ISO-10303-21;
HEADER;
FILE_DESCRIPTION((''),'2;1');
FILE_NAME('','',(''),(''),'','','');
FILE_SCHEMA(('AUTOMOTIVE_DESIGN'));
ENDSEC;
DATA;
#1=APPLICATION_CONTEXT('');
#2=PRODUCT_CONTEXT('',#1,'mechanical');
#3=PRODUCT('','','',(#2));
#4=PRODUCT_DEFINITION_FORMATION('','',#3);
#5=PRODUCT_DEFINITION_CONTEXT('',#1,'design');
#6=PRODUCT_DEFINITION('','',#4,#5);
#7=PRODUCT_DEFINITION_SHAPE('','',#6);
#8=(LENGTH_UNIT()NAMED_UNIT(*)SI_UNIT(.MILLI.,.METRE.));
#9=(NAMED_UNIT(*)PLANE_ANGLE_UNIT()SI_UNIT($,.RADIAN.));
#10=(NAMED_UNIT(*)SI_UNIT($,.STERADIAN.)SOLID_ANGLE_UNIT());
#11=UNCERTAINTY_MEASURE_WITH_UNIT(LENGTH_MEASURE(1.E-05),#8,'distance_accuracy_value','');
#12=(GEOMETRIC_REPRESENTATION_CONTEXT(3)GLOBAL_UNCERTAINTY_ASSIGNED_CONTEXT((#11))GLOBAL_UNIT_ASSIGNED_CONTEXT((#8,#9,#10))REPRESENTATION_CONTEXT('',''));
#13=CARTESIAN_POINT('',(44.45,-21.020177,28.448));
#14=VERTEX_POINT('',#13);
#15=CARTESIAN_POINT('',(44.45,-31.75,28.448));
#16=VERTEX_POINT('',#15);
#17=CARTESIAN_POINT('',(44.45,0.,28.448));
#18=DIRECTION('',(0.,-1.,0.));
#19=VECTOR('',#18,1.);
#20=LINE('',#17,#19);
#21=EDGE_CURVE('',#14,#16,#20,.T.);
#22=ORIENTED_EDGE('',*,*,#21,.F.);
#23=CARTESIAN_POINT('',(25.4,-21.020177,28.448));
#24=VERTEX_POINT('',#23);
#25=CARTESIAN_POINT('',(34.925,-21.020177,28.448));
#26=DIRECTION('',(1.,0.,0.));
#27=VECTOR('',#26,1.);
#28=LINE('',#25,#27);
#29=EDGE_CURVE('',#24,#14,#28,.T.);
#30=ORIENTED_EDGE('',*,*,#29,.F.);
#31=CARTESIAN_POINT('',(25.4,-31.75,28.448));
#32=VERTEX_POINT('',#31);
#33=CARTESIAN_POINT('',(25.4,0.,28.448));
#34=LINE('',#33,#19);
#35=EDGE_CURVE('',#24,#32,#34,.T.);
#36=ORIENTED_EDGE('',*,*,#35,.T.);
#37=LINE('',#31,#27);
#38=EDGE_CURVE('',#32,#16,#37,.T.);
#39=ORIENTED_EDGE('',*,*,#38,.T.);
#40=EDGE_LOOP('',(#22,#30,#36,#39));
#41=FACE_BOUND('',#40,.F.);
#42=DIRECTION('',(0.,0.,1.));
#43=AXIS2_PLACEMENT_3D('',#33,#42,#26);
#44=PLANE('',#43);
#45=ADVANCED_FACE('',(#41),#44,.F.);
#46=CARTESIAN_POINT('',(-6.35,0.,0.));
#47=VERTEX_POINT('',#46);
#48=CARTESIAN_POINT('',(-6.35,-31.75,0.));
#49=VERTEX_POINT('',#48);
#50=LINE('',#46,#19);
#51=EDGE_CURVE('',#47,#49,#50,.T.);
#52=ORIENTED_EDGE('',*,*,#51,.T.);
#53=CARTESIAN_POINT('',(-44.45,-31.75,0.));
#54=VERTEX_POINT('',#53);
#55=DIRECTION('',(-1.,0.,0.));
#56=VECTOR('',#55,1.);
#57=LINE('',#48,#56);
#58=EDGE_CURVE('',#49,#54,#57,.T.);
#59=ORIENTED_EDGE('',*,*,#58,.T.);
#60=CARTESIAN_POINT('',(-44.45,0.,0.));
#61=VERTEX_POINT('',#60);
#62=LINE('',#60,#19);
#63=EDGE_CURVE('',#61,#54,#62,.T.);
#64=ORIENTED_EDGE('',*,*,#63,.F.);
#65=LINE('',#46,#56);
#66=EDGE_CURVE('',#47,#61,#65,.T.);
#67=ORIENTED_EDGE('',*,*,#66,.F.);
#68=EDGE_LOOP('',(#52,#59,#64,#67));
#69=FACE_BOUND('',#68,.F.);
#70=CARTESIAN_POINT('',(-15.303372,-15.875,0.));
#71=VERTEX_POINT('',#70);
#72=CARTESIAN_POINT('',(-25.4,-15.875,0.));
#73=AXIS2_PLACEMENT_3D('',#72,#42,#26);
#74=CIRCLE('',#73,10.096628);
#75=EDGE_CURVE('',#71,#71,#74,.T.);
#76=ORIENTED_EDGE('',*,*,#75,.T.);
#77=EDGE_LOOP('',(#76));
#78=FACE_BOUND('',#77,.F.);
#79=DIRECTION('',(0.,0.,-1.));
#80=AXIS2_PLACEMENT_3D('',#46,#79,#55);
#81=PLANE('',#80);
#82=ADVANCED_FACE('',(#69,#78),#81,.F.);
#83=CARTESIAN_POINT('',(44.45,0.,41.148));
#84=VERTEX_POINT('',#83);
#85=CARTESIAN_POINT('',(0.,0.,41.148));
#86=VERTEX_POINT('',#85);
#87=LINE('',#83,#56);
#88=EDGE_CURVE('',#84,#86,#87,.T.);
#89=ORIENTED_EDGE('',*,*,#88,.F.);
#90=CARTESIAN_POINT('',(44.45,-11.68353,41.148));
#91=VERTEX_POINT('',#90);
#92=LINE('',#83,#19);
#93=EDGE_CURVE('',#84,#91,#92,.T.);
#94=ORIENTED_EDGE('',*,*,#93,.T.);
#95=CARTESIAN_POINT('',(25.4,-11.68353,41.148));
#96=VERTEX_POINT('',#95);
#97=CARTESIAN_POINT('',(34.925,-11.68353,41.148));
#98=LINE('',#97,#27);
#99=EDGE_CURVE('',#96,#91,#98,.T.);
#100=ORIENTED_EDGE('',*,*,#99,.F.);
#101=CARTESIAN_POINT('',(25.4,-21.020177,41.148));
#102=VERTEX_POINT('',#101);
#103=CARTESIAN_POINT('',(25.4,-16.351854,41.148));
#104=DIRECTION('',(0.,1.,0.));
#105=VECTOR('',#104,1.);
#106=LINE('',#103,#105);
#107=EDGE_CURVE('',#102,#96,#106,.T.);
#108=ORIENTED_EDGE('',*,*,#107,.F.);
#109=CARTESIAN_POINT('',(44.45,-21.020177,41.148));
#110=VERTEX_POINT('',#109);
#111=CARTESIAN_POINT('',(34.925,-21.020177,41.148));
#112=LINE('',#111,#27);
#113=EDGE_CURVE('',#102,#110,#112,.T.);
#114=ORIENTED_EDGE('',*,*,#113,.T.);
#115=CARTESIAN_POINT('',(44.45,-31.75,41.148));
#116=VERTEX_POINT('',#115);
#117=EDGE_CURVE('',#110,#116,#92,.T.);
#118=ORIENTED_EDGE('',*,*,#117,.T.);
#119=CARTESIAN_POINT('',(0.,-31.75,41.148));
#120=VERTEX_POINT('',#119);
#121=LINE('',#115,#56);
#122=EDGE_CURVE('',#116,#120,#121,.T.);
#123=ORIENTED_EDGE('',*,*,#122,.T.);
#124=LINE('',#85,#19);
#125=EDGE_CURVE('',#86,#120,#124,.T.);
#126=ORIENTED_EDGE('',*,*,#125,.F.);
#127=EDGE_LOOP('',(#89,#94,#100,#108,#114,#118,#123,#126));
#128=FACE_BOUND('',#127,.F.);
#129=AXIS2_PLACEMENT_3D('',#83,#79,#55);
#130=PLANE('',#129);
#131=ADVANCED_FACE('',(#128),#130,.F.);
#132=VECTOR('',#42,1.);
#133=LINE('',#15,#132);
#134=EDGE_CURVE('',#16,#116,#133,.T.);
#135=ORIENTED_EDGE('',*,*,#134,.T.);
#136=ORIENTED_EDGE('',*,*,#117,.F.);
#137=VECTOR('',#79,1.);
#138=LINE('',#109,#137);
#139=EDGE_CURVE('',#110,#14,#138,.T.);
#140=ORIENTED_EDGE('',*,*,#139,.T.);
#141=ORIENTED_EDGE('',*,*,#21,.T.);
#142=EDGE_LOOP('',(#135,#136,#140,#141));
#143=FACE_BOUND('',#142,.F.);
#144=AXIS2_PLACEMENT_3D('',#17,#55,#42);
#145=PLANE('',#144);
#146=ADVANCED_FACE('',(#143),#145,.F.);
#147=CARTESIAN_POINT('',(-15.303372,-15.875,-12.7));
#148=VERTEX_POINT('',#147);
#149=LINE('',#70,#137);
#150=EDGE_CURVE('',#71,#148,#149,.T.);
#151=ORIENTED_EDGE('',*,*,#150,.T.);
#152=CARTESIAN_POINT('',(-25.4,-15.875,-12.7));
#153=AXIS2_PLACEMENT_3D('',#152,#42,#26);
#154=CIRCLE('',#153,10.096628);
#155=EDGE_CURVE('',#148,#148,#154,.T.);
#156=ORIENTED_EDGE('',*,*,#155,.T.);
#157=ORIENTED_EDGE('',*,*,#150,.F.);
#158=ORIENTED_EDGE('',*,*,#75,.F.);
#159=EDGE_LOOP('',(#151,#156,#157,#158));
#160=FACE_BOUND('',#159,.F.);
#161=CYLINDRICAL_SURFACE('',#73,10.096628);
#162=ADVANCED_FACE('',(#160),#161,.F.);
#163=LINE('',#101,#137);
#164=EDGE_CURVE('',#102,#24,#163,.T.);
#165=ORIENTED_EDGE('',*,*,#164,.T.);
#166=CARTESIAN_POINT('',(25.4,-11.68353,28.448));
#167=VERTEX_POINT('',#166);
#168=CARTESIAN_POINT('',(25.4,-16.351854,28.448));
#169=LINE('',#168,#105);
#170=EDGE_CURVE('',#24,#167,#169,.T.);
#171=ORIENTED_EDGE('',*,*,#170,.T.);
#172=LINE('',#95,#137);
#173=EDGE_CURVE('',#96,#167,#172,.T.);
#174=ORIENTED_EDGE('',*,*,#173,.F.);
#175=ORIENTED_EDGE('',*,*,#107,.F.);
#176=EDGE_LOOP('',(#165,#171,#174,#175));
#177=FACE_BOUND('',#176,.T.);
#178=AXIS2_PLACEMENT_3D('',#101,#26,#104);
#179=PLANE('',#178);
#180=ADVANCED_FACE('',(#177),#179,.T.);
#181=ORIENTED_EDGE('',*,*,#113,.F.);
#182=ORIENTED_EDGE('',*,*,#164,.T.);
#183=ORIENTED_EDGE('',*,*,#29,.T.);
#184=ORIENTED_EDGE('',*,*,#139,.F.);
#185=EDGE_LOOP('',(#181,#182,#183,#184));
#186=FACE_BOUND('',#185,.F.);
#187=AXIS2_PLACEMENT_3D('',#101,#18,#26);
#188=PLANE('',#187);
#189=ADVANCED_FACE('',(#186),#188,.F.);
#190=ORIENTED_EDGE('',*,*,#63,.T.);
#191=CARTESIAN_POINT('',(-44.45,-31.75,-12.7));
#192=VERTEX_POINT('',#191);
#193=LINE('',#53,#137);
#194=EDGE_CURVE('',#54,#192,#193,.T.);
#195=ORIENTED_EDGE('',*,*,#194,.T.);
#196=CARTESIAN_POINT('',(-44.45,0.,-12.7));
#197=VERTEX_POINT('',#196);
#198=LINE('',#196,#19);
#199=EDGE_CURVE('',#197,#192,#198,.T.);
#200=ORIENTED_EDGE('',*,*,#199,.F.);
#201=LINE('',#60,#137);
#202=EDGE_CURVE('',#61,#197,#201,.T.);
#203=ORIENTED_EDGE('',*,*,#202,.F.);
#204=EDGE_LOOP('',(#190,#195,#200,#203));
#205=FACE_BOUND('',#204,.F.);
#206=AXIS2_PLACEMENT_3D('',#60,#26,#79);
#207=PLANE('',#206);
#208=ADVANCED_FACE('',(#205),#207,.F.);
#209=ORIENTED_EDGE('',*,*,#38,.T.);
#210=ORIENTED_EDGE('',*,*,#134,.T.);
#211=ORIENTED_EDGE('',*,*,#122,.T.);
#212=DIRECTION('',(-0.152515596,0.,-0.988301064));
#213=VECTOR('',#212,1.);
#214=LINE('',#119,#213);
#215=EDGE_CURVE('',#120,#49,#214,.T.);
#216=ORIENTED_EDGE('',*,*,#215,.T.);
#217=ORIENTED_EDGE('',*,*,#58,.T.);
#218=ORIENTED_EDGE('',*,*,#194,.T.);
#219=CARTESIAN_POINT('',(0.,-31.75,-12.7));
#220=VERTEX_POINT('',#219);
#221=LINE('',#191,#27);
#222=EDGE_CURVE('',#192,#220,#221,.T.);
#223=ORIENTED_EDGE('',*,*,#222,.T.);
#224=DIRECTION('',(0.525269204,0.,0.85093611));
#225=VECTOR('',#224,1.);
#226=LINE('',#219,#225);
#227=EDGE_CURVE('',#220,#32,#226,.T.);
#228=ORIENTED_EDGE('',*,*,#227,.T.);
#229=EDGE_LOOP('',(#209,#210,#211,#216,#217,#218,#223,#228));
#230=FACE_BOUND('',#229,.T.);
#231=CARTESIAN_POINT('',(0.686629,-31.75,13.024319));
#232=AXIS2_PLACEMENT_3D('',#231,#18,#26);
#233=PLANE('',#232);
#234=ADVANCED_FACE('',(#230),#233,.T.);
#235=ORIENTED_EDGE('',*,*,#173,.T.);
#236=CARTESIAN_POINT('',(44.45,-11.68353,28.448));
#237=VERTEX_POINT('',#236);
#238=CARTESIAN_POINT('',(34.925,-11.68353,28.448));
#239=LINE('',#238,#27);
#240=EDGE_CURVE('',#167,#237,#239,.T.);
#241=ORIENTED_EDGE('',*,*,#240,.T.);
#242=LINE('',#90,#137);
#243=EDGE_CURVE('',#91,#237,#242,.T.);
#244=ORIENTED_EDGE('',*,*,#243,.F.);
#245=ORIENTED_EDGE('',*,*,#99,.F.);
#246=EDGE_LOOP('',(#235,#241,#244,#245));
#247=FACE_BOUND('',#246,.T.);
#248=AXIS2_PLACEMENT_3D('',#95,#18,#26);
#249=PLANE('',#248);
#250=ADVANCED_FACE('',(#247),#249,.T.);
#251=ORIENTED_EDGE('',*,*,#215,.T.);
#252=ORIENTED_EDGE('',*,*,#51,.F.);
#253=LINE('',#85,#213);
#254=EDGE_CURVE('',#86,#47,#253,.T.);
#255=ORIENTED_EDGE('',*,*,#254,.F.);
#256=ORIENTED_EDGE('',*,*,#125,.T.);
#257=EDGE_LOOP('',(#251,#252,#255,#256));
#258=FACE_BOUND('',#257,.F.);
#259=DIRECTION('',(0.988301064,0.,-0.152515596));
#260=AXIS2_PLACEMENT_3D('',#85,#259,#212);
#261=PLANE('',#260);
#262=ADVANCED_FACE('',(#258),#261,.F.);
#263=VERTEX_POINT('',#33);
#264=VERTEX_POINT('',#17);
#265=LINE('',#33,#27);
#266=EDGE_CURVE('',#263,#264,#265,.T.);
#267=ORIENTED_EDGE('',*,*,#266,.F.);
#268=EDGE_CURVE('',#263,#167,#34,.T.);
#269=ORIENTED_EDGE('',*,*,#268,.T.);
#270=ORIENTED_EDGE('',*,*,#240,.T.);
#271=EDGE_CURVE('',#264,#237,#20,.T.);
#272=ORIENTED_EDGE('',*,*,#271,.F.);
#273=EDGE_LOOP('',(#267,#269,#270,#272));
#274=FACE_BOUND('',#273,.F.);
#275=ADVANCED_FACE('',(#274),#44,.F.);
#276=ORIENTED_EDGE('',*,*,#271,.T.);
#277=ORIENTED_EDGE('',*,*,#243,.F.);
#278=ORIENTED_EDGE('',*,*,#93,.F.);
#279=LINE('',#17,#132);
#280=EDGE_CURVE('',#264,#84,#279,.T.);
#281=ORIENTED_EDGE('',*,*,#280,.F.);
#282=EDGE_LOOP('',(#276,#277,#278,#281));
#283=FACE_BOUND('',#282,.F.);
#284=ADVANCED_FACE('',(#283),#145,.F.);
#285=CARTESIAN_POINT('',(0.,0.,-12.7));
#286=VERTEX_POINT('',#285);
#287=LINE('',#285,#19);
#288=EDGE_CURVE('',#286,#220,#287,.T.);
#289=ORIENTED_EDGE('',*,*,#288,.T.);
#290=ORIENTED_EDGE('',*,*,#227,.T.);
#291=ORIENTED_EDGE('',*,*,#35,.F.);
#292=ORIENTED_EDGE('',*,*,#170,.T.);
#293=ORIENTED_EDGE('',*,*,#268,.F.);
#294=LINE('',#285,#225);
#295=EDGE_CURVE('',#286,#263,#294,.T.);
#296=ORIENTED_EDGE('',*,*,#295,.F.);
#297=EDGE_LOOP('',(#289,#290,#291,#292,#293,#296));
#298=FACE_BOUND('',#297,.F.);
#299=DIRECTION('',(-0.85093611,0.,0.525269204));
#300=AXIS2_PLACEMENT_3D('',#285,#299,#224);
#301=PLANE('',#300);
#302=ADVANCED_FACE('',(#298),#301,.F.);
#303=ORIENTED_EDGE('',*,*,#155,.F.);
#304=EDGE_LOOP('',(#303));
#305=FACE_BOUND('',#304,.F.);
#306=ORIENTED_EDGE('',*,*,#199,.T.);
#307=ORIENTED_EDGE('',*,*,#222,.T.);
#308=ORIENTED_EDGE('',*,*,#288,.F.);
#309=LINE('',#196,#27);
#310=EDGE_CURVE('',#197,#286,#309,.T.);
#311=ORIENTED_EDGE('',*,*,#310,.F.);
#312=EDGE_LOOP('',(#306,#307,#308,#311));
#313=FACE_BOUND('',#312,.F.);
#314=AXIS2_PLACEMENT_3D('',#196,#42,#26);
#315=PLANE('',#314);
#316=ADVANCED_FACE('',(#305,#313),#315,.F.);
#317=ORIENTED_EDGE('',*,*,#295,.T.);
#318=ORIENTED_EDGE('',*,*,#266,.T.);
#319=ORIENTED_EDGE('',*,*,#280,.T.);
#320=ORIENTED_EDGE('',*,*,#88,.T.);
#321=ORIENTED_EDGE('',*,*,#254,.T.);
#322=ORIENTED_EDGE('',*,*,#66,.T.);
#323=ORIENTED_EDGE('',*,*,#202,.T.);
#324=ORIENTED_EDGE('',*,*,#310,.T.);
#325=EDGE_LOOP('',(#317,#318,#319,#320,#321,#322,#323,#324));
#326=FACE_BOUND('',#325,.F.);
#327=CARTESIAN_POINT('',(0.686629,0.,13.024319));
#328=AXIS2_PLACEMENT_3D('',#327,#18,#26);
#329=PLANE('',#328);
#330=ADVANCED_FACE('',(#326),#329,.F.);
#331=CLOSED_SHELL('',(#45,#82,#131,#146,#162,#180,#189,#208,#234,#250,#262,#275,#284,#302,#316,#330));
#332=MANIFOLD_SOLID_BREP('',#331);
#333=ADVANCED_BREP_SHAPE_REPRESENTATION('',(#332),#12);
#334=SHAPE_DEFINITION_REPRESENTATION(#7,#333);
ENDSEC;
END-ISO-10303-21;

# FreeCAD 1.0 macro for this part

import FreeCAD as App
import Part
import Sketcher

V = App.Vector
Q = App.Units.Quantity


def add_polygon(sketch, points):
    """Adds a closed chain of lines whose ends are joined by coincident constraints."""
    first, n = sketch.GeometryCount, len(points)
    for a, b in zip(points, points[1:] + points[:1]):
        sketch.addGeometry(Part.LineSegment(App.Vector(*a, 0), App.Vector(*b, 0)), False)
    for i in range(n):
        sketch.addConstraint(Sketcher.Constraint("Coincident", first + i, 2, first + (i + 1) % n, 1))

doc = App.newDocument("Part")
params = doc.addObject("Spreadsheet::Sheet", "Params")
for row, (alias, value) in enumerate([
    ("sketch1_width", "1.5 in"),
    ("sketch1_height", "0.5 in"),
    ("sketch1_width2", "1.75 in"),
    ("pad1_length", "1.25 in"),
    ("pocket1_length", "0.62 in"),
    ("sketch3_width", "0.75 in"),
    ("pocket2_length", "0.5 in"),
], start=1):
    params.set(f"A{row}", alias)
    params.set(f"B{row}", "=" + value)
    params.setAlias(f"B{row}", alias)

body = doc.addObject("PartDesign::Body", "Body")

sketch1 = body.newObject("Sketcher::SketchObject", "Sketch")
sketch1.AttachmentSupport = (doc.getObject("XZ_Plane"), [""])
sketch1.MapMode = "FlatFace"
add_polygon(sketch1, [(-6, 0), (-44, 0), (-44, -13), (0, -13), (25, 28), (44, 28), (44, 41), (0, 41)])
sketch1.addConstraint([
    Sketcher.Constraint("Horizontal", 0),
    Sketcher.Constraint("Vertical", 1),
    Sketcher.Constraint("Horizontal", 2),
    Sketcher.Constraint("Horizontal", 4),
    Sketcher.Constraint("Vertical", 5),
    Sketcher.Constraint("Horizontal", 6),
    Sketcher.Constraint("PointOnObject", 0, 2, -1),
    Sketcher.Constraint("PointOnObject", 2, 2, -2),
    Sketcher.Constraint("PointOnObject", 6, 2, -2),
    Sketcher.Constraint("Equal", 2, 6),
    Sketcher.Constraint("Equal", 1, 5),
    Sketcher.Constraint("DistanceX", 0, 2, 0, 1, Q("1.5 in")),
    Sketcher.Constraint("DistanceY", 1, 2, 1, 1, Q("0.5 in")),
    Sketcher.Constraint("DistanceX", -1, 1, 3, 2, Q("1 in")),
    Sketcher.Constraint("DistanceX", 2, 1, 2, 2, Q("1.75 in")),
    Sketcher.Constraint("DistanceY", -1, 1, 3, 2, Q("1.12 in")),
])
sketch1.setExpression("Constraints[19]", "Params.sketch1_width")
sketch1.setExpression("Constraints[20]", "Params.sketch1_height")
sketch1.setExpression("Constraints[22]", "Params.sketch1_width2")
pad1 = body.newObject("PartDesign::Pad", "Pad")
pad1.Profile = sketch1
pad1.setExpression("Length", "Params.pad1_length")

sketch2 = body.newObject("Sketcher::SketchObject", "Sketch001")
sketch2.AttachmentSupport = (doc.getObject("XY_Plane"), [""])
sketch2.MapMode = "FlatFace"
sketch2.addGeometry(Part.Circle(V(-25, -16, 0), V(0, 0, 1), 10), False)
sketch2.addConstraint([
    Sketcher.Constraint("DistanceX", 0, 3, -1, 1, Q("1 in")),
    Sketcher.Constraint("DistanceY", 0, 3, -1, 1, Q("0.625 in")),
    Sketcher.Constraint("Diameter", 0, Q("20.193256 mm")),
])
pocket1 = body.newObject("PartDesign::Pocket", "Pocket")
pocket1.Profile = sketch2
pocket1.setExpression("Length", "Params.pocket1_length")

sketch3 = body.newObject("Sketcher::SketchObject", "Sketch002")
sketch3.AttachmentSupport = (doc.getObject("XY_Plane"), [""])
sketch3.MapMode = "FlatFace"
sketch3.AttachmentOffset = App.Placement(V(0, 0, 1.62 * 25.4), App.Rotation())
add_polygon(sketch3, [(25, -12), (25, -21), (44, -21), (44, -12)])
sketch3.addConstraint([
    Sketcher.Constraint("Vertical", 0),
    Sketcher.Constraint("Horizontal", 1),
    Sketcher.Constraint("Vertical", 2),
    Sketcher.Constraint("Horizontal", 3),
    Sketcher.Constraint("DistanceX", -1, 1, 0, 2, Q("1 in")),
    Sketcher.Constraint("DistanceX", 1, 1, 1, 2, Q("0.75 in")),
    Sketcher.Constraint("DistanceY", 0, 2, 0, 1, Q("9.336647 mm")),
    Sketcher.Constraint("DistanceY", 2, 2, -1, 1, Q("11.68353 mm")),
])
sketch3.setExpression("Constraints[9]", "Params.sketch3_width")
pocket2 = body.newObject("PartDesign::Pocket", "Pocket001")
pocket2.Profile = sketch3
pocket2.setExpression("Length", "Params.pocket2_length")

doc.recompute()
